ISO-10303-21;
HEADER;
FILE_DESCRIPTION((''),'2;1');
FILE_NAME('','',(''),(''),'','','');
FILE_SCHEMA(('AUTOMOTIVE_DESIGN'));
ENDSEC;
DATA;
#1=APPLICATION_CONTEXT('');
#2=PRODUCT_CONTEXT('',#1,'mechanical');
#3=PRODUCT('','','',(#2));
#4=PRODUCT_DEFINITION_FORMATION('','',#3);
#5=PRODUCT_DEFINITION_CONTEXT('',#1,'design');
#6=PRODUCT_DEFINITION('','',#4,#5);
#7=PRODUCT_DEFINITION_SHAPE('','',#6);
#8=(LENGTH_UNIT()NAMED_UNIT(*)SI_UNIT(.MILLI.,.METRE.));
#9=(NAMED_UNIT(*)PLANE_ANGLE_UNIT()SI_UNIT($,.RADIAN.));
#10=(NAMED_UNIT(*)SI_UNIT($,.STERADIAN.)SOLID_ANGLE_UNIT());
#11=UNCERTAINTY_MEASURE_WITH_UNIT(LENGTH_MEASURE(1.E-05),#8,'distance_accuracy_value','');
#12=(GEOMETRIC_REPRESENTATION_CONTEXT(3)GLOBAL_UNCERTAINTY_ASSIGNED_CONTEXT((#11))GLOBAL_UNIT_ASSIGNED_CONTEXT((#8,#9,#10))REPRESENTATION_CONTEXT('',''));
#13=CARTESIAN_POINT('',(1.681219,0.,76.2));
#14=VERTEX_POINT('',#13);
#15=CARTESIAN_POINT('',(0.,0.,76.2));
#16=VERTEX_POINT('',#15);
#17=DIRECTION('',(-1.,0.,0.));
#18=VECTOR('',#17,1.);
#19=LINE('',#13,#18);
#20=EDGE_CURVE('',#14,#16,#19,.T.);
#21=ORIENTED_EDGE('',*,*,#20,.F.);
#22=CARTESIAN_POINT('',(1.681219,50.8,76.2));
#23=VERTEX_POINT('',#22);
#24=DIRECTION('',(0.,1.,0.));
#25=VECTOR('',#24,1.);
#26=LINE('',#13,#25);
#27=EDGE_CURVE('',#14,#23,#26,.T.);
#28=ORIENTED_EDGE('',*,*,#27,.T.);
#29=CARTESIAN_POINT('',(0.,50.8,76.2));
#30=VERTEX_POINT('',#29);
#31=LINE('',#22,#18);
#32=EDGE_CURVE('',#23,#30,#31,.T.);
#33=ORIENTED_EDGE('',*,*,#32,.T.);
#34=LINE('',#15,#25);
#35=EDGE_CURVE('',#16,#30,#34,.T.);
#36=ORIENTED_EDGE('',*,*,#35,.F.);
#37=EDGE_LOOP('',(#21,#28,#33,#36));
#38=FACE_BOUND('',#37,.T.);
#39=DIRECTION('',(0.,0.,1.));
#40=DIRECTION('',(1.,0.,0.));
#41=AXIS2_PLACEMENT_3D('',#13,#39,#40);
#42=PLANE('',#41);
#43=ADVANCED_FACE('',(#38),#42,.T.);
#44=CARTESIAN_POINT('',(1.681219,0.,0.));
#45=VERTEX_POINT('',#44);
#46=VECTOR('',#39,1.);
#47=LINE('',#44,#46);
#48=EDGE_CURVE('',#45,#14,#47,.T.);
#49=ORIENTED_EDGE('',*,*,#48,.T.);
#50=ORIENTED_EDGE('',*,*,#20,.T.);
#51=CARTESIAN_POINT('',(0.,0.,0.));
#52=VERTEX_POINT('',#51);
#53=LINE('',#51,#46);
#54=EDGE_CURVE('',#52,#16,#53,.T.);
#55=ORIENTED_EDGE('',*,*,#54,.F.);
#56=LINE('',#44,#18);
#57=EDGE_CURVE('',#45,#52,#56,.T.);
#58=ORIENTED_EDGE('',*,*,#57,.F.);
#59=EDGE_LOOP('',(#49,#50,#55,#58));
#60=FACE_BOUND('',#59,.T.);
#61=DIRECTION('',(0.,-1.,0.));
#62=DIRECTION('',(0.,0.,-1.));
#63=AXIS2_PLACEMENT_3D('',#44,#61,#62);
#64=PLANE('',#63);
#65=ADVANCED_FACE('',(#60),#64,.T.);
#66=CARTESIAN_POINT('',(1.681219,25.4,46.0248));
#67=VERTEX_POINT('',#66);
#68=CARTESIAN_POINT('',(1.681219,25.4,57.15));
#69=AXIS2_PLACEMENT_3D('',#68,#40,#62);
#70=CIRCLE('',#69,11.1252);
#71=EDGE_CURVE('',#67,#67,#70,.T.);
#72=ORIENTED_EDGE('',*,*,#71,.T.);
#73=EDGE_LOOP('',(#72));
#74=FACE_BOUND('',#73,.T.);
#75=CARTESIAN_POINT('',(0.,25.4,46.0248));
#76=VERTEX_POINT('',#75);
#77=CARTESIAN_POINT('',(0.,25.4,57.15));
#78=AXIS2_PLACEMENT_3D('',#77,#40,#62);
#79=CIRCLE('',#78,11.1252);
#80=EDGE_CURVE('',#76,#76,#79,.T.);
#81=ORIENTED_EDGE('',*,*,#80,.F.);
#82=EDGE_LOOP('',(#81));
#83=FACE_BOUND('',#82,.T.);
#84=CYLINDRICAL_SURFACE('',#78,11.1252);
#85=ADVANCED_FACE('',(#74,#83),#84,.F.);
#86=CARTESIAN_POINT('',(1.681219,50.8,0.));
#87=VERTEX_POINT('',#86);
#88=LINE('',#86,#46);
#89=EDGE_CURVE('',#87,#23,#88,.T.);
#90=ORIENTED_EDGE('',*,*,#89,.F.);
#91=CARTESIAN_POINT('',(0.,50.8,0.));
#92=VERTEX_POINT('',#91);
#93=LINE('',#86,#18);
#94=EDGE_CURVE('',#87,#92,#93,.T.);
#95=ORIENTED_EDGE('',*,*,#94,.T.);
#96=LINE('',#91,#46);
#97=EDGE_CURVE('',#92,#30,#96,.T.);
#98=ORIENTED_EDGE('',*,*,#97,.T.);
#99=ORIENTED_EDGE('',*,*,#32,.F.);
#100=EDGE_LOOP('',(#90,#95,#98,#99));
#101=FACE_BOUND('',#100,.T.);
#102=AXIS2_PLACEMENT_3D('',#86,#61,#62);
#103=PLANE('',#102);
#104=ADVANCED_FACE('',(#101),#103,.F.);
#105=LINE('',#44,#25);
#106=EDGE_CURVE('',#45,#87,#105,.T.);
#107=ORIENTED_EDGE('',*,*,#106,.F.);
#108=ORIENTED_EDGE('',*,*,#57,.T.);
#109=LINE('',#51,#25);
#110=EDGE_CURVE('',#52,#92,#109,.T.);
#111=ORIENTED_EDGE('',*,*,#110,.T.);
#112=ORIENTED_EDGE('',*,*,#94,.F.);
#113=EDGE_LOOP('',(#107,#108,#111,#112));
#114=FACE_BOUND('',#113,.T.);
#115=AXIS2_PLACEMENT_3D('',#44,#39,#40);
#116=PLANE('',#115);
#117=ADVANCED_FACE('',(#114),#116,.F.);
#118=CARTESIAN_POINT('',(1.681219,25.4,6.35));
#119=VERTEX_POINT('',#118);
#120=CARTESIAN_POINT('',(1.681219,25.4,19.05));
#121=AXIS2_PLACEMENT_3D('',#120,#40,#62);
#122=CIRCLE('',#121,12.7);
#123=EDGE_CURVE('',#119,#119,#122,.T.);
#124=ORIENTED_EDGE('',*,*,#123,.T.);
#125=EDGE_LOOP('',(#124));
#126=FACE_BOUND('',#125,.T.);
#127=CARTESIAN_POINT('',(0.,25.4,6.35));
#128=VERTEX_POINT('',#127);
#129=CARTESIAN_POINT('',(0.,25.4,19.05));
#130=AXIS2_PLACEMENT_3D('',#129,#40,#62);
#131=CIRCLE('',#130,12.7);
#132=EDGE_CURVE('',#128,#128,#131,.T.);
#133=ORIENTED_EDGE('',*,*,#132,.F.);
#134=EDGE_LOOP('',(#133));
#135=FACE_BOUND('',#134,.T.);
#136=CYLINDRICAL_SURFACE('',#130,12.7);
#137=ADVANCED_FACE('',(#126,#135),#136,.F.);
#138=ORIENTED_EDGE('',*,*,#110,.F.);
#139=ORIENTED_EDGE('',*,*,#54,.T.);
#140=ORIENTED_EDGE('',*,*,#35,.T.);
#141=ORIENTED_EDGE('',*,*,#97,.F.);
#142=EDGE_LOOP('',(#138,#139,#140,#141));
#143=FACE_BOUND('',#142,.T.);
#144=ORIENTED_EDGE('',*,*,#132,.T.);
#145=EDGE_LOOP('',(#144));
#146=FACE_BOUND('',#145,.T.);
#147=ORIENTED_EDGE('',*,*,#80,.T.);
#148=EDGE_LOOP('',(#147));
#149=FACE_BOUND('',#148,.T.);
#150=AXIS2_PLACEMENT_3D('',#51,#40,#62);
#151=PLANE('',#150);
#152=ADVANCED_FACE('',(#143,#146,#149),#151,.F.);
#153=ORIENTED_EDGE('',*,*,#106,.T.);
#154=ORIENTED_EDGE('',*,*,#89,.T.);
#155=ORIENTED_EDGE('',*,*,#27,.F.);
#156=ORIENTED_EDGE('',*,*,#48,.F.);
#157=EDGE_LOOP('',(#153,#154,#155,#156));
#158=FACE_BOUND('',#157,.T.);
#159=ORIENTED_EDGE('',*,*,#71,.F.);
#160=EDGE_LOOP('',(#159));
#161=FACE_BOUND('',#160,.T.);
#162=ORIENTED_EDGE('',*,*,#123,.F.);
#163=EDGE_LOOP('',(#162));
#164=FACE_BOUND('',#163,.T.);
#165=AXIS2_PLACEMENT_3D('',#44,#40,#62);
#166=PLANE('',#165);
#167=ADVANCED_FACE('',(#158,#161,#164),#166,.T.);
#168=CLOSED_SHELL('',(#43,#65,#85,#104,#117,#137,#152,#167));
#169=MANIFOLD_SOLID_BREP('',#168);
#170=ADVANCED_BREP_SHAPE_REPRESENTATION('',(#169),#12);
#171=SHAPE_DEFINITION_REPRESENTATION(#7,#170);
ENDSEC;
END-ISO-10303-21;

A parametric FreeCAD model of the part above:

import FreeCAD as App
import Part
import Sketcher
from FreeCAD import Vector
Q = App.Units.Quantity


def add_polygon(sketch, points):
    """Adds a closed chain of lines whose ends are joined by coincident constraints."""
    first, n = sketch.GeometryCount, len(points)
    for a, b in zip(points, points[1:] + points[:1]):
        sketch.addGeometry(Part.LineSegment(App.Vector(*a, 0), App.Vector(*b, 0)), False)
    for i in range(n):
        sketch.addConstraint(Sketcher.Constraint("Coincident", first + i, 2, first + (i + 1) % n, 1))

doc = App.newDocument("Part")
body = doc.addObject("PartDesign::Body", "Body")

# Sketch on YZ plane
sketch1 = body.newObject("Sketcher::SketchObject", "Sketch")
sketch1.AttachmentSupport = (doc.getObject("YZ_Plane"), [""])
sketch1.MapMode = "FlatFace"
add_polygon(sketch1, [(0, 76), (0, 0), (51, 0), (51, 76)])  # lines 0-3
sketch1.addConstraint([
    Sketcher.Constraint("Vertical", 0),
    Sketcher.Constraint("Horizontal", 1),
    Sketcher.Constraint("Vertical", 2),
    Sketcher.Constraint("Horizontal", 3),
    Sketcher.Constraint("Coincident", 0, 2, -1, 1),
    Sketcher.Constraint("DistanceX", 1, 1, 1, 2, Q("2 in")),
    Sketcher.Constraint("DistanceY", 0, 2, 0, 1, Q("3 in")),
])
pad1 = body.newObject("PartDesign::Pad", "Pad")
pad1.Profile = sketch1
pad1.Length = 1.681219

# Sketch on YZ plane
sketch2 = body.newObject("Sketcher::SketchObject", "Sketch001")
sketch2.AttachmentSupport = (doc.getObject("YZ_Plane"), [""])
sketch2.MapMode = "FlatFace"
sketch2.AttachmentOffset = App.Placement(Vector(0, 0, 1.681219), App.Rotation())
sketch2.addGeometry([
    Part.Circle(Vector(25, 57, 0), Vector(0, 0, 1), 11),
    Part.Circle(Vector(25, 19, 0), Vector(0, 0, 1), 13),
], False)
sketch2.addConstraint([
    Sketcher.Constraint("Vertical", 0, 3, 1, 3),
    Sketcher.Constraint("Diameter", 1, Q("1 in")),
    Sketcher.Constraint("Diameter", 0, Q("0.876 in")),
    Sketcher.Constraint("DistanceX", -1, 1, 0, 3, Q("1 in")),
    Sketcher.Constraint("DistanceY", 1, 3, 0, 3, Q("1.5 in")),
    Sketcher.Constraint("DistanceY", -1, 1, 0, 3, Q("2.25 in")),
])
pocket1 = body.newObject("PartDesign::Pocket", "Pocket")
pocket1.Profile = sketch2
pocket1.Type = "ThroughAll"

doc.recompute()
